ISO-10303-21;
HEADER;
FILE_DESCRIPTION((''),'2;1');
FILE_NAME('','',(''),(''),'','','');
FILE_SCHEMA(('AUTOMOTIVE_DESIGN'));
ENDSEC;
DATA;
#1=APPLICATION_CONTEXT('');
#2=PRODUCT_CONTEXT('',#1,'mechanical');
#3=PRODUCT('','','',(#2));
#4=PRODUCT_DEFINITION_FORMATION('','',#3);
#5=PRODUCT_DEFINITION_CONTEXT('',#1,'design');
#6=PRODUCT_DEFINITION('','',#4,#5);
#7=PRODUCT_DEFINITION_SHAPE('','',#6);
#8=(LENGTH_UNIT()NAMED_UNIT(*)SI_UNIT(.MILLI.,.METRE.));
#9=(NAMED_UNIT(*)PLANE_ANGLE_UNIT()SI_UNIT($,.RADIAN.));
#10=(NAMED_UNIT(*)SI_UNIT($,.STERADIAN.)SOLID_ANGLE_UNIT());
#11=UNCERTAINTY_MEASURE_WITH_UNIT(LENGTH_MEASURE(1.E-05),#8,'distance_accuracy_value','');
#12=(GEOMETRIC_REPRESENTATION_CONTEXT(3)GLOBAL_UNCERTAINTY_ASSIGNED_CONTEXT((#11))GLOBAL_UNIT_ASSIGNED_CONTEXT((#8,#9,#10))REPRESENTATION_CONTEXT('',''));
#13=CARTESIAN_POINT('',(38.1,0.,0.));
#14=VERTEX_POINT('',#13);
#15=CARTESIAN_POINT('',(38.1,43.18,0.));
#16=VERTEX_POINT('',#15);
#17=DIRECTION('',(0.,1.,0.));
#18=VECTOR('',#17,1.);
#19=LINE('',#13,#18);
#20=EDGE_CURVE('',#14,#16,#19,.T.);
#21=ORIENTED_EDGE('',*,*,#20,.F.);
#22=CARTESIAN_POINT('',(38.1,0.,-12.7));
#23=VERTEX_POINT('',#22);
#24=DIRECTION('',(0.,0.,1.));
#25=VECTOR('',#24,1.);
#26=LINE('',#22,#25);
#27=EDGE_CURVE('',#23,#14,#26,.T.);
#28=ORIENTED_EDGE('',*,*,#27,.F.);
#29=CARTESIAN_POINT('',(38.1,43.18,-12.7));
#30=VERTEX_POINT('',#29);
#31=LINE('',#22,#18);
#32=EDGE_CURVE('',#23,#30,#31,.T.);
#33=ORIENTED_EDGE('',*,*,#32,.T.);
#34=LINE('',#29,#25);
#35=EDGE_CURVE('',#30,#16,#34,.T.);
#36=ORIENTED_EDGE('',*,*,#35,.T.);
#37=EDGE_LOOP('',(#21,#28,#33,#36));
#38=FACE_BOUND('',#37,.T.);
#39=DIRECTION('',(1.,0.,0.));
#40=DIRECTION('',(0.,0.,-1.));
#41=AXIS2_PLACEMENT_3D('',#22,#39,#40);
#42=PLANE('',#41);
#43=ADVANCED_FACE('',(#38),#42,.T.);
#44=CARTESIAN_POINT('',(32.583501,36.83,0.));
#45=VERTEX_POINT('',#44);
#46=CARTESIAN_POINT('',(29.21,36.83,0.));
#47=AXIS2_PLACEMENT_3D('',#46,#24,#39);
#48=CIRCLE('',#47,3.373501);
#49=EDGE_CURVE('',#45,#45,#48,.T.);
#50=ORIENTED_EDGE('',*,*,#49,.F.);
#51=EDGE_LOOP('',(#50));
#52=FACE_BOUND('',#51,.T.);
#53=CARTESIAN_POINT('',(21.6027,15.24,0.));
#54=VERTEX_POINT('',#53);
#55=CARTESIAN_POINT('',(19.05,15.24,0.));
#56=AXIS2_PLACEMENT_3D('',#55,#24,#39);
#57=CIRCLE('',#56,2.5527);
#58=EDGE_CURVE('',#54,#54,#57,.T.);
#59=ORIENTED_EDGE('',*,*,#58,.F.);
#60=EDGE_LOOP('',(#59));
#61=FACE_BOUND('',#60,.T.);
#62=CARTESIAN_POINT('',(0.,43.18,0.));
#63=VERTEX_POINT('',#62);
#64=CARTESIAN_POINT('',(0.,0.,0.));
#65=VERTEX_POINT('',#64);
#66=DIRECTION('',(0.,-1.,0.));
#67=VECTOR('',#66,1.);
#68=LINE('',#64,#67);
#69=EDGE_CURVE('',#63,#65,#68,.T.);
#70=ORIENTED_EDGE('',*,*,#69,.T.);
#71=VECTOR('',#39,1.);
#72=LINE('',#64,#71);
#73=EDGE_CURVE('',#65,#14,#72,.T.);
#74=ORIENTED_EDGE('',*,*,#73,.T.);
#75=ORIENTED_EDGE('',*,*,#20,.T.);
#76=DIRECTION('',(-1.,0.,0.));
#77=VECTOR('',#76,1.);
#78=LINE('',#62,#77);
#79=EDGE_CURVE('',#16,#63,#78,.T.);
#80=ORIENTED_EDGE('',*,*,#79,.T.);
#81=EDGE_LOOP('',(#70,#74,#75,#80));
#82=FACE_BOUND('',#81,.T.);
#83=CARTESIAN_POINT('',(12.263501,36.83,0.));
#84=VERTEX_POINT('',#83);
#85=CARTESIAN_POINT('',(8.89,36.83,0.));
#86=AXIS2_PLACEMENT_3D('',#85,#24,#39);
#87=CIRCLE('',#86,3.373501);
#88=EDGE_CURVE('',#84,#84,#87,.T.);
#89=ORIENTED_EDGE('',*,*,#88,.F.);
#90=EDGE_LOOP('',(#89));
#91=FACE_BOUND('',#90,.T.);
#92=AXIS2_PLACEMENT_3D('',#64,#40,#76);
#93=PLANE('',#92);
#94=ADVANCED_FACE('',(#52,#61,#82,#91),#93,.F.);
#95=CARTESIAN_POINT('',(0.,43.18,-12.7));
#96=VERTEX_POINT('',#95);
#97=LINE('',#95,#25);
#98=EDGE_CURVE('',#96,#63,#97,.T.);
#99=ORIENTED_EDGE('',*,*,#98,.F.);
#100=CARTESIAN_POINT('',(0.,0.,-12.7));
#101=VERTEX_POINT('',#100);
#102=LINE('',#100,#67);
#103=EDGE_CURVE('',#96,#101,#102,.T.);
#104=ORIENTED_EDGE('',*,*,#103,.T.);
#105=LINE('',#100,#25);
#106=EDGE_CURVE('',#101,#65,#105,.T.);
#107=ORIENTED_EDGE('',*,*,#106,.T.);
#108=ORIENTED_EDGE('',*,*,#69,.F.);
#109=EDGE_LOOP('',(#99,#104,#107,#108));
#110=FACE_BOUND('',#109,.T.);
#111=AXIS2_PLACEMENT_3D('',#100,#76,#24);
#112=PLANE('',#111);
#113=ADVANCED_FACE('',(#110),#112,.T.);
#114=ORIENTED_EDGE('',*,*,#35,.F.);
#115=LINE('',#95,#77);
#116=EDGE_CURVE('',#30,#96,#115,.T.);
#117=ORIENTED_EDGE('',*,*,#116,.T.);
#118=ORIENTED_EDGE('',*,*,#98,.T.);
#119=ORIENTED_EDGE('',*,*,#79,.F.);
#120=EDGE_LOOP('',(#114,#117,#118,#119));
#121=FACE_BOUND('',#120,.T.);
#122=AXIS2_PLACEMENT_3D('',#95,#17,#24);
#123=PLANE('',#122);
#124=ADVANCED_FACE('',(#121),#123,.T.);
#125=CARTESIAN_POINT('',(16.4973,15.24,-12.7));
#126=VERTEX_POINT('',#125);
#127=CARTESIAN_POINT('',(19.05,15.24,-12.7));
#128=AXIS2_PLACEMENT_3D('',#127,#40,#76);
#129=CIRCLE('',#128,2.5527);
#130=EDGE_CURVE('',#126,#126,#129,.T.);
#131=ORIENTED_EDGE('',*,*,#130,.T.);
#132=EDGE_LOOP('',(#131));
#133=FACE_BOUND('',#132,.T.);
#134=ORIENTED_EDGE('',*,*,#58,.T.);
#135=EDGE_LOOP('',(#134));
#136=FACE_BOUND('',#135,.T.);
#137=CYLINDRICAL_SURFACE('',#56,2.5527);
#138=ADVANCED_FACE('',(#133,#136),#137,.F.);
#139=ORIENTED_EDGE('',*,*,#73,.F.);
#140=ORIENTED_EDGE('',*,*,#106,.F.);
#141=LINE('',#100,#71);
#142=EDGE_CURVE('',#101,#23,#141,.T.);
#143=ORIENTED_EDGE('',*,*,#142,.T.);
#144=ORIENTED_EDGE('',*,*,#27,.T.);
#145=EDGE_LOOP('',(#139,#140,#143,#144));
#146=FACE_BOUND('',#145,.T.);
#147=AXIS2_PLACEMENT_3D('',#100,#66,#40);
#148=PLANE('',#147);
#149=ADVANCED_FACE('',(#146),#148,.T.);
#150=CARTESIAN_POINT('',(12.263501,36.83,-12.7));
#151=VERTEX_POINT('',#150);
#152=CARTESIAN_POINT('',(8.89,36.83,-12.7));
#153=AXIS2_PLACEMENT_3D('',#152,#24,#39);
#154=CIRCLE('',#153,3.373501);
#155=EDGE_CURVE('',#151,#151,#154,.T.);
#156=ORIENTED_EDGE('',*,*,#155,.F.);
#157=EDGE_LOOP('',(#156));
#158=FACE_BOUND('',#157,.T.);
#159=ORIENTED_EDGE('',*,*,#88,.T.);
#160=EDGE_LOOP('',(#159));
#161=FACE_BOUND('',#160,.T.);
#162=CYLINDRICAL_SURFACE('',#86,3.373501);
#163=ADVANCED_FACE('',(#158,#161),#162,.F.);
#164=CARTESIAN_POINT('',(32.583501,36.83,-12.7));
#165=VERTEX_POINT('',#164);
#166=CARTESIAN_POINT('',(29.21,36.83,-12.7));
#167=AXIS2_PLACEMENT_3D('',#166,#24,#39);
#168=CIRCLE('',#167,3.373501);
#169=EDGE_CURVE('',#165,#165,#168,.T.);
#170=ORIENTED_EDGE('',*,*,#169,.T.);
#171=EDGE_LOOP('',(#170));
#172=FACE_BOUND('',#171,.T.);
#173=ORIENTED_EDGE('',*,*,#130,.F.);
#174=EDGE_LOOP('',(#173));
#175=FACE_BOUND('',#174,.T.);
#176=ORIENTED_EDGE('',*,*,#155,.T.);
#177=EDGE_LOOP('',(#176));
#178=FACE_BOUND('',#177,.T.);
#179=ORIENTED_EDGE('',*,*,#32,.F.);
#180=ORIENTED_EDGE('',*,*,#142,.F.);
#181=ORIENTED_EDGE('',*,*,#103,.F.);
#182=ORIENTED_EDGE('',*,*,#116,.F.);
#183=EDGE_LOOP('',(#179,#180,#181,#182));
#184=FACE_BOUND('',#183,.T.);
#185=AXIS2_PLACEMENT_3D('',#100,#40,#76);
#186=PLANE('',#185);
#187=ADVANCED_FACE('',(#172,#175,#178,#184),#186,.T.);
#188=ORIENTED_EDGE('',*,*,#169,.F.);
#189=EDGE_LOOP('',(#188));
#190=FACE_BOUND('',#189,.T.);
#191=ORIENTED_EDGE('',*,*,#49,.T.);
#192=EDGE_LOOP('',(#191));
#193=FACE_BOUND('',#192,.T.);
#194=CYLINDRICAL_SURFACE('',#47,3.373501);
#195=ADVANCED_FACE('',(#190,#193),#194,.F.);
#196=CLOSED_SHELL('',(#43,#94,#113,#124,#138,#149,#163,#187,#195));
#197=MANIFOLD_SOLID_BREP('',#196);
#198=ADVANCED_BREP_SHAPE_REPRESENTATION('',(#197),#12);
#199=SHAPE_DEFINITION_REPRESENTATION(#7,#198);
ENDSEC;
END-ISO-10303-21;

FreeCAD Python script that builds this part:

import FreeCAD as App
import Part
import Sketcher
Q = App.Units.Quantity


def add_polygon(sketch, points):
    """Adds a closed chain of lines whose ends are joined by coincident constraints."""
    first, n = sketch.GeometryCount, len(points)
    for a, b in zip(points, points[1:] + points[:1]):
        sketch.addGeometry(Part.LineSegment(App.Vector(*a, 0), App.Vector(*b, 0)), False)
    for i in range(n):
        sketch.addConstraint(Sketcher.Constraint("Coincident", first + i, 2, first + (i + 1) % n, 1))

doc = App.newDocument("Part")
body = doc.addObject("PartDesign::Body", "Body")

sketch1 = body.newObject("Sketcher::SketchObject", "Sketch")
sketch1.AttachmentSupport = (doc.getObject("XY_Plane"), [""])
sketch1.MapMode = "FlatFace"
add_polygon(sketch1, [(0, 43), (0, 0), (38, 0), (38, 43)])
sketch1.addConstraint([
    Sketcher.Constraint("Vertical", 0),
    Sketcher.Constraint("Horizontal", 1),
    Sketcher.Constraint("Vertical", 2),
    Sketcher.Constraint("Horizontal", 3),
    Sketcher.Constraint("Coincident", 0, 2, -1, 1),
    Sketcher.Constraint("DistanceX", 1, 1, 1, 2, Q("1.5 in")),
    Sketcher.Constraint("DistanceY", 0, 2, 0, 1, Q("1.7 in")),
])
pad1 = body.newObject("PartDesign::Pad", "Pad")
pad1.Profile = sketch1
pad1.Length = Q("0.5 in")
pad1.Reversed = True

sketch2 = body.newObject("Sketcher::SketchObject", "Sketch001")
sketch2.AttachmentSupport = (doc.getObject("XY_Plane"), [""])
sketch2.MapMode = "FlatFace"
sketch2.addGeometry([
    Part.Circle(App.Vector(29.2, 36.8, 0), App.Vector(0, 0, 1), 3.4),
    Part.Circle(App.Vector(8.9, 36.8, 0), App.Vector(0, 0, 1), 3.4),
], False)
sketch2.addConstraint([
    Sketcher.Constraint("Equal", 0, 1),
    Sketcher.Constraint("Horizontal", 0, 3, 1, 3),
    Sketcher.Constraint("DistanceX", 1, 3, 0, 3, Q("0.8 in")),
    Sketcher.Constraint("DistanceX", -1, 1, 0, 3, Q("1.15 in")),
    Sketcher.Constraint("DistanceY", -1, 1, 0, 3, Q("1.45 in")),
    Sketcher.Constraint("Diameter", 0, 6.747002),
])
doc.recompute()
hole = body.newObject("PartDesign::Hole", "Hole")
hole.Profile = sketch2
hole.ThreadType = "None"
hole.Diameter = 6.747002
hole.DepthType = "ThroughAll"

sketch3 = body.newObject("Sketcher::SketchObject", "Sketch002")
sketch3.AttachmentSupport = (doc.getObject("XY_Plane"), [""])
sketch3.MapMode = "FlatFace"
sketch3.addGeometry(Part.Circle(App.Vector(19.1, 15.2, 0), App.Vector(0, 0, 1), 2.6), False)
sketch3.addConstraint([
    Sketcher.Constraint("Diameter", 0, Q("0.201 in")),
    Sketcher.Constraint("DistanceY", -1, 1, 0, 3, Q("0.6 in")),
    Sketcher.Constraint("DistanceX", -1, 1, 0, 3, Q("0.75 in")),
])
doc.recompute()
hole2 = body.newObject("PartDesign::Hole", "Hole001")
hole2.Profile = sketch3
hole2.ThreadType = "None"
hole2.Diameter = Q("0.201 in")
hole2.DepthType = "Dimension"
hole2.Depth = Q("0.5 in")
hole2.DrillPoint = "Flat"

doc.recompute()
